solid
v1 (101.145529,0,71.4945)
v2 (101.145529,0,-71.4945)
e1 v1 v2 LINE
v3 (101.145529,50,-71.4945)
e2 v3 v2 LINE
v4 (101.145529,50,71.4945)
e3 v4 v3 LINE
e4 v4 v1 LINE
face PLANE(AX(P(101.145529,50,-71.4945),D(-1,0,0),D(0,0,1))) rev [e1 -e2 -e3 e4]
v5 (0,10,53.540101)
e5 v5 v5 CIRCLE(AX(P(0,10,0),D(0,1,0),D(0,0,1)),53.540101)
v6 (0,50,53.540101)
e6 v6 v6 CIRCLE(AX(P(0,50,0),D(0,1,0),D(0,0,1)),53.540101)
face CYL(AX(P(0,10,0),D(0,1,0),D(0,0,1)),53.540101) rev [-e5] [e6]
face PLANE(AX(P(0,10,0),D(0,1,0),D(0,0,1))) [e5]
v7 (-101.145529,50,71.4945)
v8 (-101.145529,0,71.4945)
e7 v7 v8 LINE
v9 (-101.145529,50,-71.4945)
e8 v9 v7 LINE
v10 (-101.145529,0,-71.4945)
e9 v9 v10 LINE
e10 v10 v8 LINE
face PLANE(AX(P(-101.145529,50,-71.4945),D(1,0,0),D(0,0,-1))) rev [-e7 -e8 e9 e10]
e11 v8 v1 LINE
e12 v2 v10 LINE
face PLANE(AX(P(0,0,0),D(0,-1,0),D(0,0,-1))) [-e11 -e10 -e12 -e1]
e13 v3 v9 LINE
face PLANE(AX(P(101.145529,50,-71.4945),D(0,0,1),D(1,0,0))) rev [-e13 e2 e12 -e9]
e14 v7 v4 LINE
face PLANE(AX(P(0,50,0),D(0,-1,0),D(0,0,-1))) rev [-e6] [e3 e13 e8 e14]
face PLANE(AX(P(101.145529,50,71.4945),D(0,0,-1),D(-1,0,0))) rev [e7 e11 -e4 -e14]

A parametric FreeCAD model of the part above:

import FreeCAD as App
import Part
import Sketcher


def add_polygon(sketch, points):
    """Adds a closed chain of lines whose ends are joined by coincident constraints."""
    first, n = sketch.GeometryCount, len(points)
    for a, b in zip(points, points[1:] + points[:1]):
        sketch.addGeometry(Part.LineSegment(App.Vector(*a, 0), App.Vector(*b, 0)), False)
    for i in range(n):
        sketch.addConstraint(Sketcher.Constraint("Coincident", first + i, 2, first + (i + 1) % n, 1))

doc = App.newDocument("Part")
body = doc.addObject("PartDesign::Body", "Body")

# Sketch on XZ plane
sketch1 = body.newObject("Sketcher::SketchObject", "Sketch")
sketch1.AttachmentSupport = (doc.getObject("XZ_Plane"), [""])
sketch1.MapMode = "FlatFace"
add_polygon(sketch1, [(-101, -71), (-101, 71), (101, 71), (101, -71)])  # lines 0-3
sketch1.addConstraint([
    Sketcher.Constraint("Vertical", 0),
    Sketcher.Constraint("Horizontal", 1),
    Sketcher.Constraint("Vertical", 2),
    Sketcher.Constraint("Horizontal", 3),
    Sketcher.Constraint("Symmetric", 0, 2, 2, 2, -1, 1),
    Sketcher.Constraint("DistanceY", 0, 1, 0, 2, 142.989),
    Sketcher.Constraint("DistanceX", 1, 1, 1, 2, 202.291057),
])
pad1 = body.newObject("PartDesign::Pad", "Pad")
pad1.Profile = sketch1
pad1.Length = 50
pad1.Reversed = True

# Sketch on XZ plane
sketch2 = body.newObject("Sketcher::SketchObject", "Sketch001")
sketch2.AttachmentSupport = (doc.getObject("XZ_Plane"), [""])
sketch2.MapMode = "FlatFace"
sketch2.AttachmentOffset = App.Placement(App.Vector(0, 0, -50), App.Rotation())
sketch2.addGeometry(Part.Circle(App.Vector(0, 0, 0), App.Vector(0, 0, 1), 54), False)
sketch2.addConstraint([
    Sketcher.Constraint("Coincident", 0, 3, -1, 1),
    Sketcher.Constraint("Diameter", 0, 107.080202),
])
pocket1 = body.newObject("PartDesign::Pocket", "Pocket")
pocket1.Profile = sketch2
pocket1.Length = 40
pocket1.Reversed = True

doc.recompute()
